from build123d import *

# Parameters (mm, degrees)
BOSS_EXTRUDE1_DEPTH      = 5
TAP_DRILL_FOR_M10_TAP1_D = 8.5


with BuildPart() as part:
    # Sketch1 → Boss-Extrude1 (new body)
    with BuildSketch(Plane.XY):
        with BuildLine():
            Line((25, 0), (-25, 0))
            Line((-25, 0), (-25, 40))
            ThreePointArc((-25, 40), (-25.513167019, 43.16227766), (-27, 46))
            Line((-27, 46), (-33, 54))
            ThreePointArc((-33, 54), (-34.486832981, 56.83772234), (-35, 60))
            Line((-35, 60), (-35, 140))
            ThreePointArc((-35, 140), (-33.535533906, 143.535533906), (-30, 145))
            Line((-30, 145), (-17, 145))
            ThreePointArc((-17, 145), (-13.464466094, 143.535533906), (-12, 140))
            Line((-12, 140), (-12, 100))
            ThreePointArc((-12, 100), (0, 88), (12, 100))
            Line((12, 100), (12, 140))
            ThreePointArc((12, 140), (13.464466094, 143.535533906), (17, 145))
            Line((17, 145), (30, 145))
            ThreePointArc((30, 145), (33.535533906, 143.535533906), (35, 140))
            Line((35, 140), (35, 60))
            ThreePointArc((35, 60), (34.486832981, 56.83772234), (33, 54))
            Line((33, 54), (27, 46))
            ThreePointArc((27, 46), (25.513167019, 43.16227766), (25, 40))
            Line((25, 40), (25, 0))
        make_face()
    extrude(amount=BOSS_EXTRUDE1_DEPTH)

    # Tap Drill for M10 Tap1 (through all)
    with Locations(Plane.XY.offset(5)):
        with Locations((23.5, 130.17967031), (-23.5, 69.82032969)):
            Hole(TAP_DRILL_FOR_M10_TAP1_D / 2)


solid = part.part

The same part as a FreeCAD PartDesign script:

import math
import FreeCAD as App
import Part
import Sketcher

V = App.Vector

doc = App.newDocument("Part")
body = doc.addObject("PartDesign::Body", "Body")

# Sketch on XY plane
sketch1 = body.newObject("Sketcher::SketchObject", "Sketch")
sketch1.AttachmentSupport = (doc.getObject("XY_Plane"), [""])
sketch1.MapMode = "FlatFace"
sketch1.addGeometry([
    Part.LineSegment(V(-25, 0, 0), V(25, 0, 0)),  # 0
    Part.LineSegment(V(25, 0, 0), V(25, 40, 0)),  # 1
    Part.ArcOfCircle(Part.Circle(V(35, 40, 0), V(0, 0, 1), 10), math.radians(143), math.radians(180)),  # 2
    Part.LineSegment(V(27, 46, 0), V(33, 54, 0)),  # 3
    Part.ArcOfCircle(Part.Circle(V(25, 60, 0), V(0, 0, 1), 10), math.radians(-37), math.radians(0)),  # 4
    Part.LineSegment(V(35, 60, 0), V(35, 140, 0)),  # 5
    Part.ArcOfCircle(Part.Circle(V(30, 140, 0), V(0, 0, 1), 5), math.radians(0), math.radians(90)),  # 6
    Part.LineSegment(V(30, 145, 0), V(17, 145, 0)),  # 7
    Part.ArcOfCircle(Part.Circle(V(17, 140, 0), V(0, 0, 1), 5), math.radians(90), math.radians(180)),  # 8
    Part.LineSegment(V(12, 140, 0), V(12, 100, 0)),  # 9
    Part.ArcOfCircle(Part.Circle(V(0, 100, 0), V(0, 0, 1), 12), math.radians(180), math.radians(360)),  # 10
    Part.LineSegment(V(-12, 100, 0), V(-12, 140, 0)),  # 11
    Part.ArcOfCircle(Part.Circle(V(-17, 140, 0), V(0, 0, 1), 5), math.radians(0), math.radians(90)),  # 12
    Part.LineSegment(V(-17, 145, 0), V(-30, 145, 0)),  # 13
    Part.ArcOfCircle(Part.Circle(V(-30, 140, 0), V(0, 0, 1), 5), math.radians(90), math.radians(180)),  # 14
    Part.LineSegment(V(-35, 140, 0), V(-35, 60, 0)),  # 15
    Part.ArcOfCircle(Part.Circle(V(-25, 60, 0), V(0, 0, 1), 10), math.radians(180), math.radians(217)),  # 16
    Part.LineSegment(V(-33, 54, 0), V(-27, 46, 0)),  # 17
    Part.ArcOfCircle(Part.Circle(V(-35, 40, 0), V(0, 0, 1), 10), math.radians(0), math.radians(37)),  # 18
    Part.LineSegment(V(-25, 40, 0), V(-25, 0, 0)),  # 19
], False)
sketch1.addConstraint([
    Sketcher.Constraint("Coincident", 0, 2, 1, 1),
    Sketcher.Constraint("Tangent", 1, 2, 2, 2),
    Sketcher.Constraint("Tangent", 2, 1, 3, 1),
    Sketcher.Constraint("Tangent", 3, 2, 4, 1),
    Sketcher.Constraint("Tangent", 4, 2, 5, 1),
    Sketcher.Constraint("Tangent", 5, 2, 6, 1),
    Sketcher.Constraint("Tangent", 6, 2, 7, 1),
    Sketcher.Constraint("Tangent", 7, 2, 8, 1),
    Sketcher.Constraint("Tangent", 8, 2, 9, 1),
    Sketcher.Constraint("Tangent", 9, 2, 10, 2),
    Sketcher.Constraint("Tangent", 10, 1, 11, 1),
    Sketcher.Constraint("Tangent", 11, 2, 12, 1),
    Sketcher.Constraint("Tangent", 12, 2, 13, 1),
    Sketcher.Constraint("Tangent", 13, 2, 14, 1),
    Sketcher.Constraint("Tangent", 14, 2, 15, 1),
    Sketcher.Constraint("Tangent", 15, 2, 16, 1),
    Sketcher.Constraint("Tangent", 16, 2, 17, 1),
    Sketcher.Constraint("Tangent", 17, 2, 18, 2),
    Sketcher.Constraint("Tangent", 18, 1, 19, 1),
    Sketcher.Constraint("Coincident", 19, 2, 0, 1),
    Sketcher.Constraint("Horizontal", 0),
    Sketcher.Constraint("Vertical", 1),
    Sketcher.Constraint("Vertical", 5),
    Sketcher.Constraint("Horizontal", 7),
    Sketcher.Constraint("Vertical", 9),
    Sketcher.Constraint("Vertical", 11),
    Sketcher.Constraint("Horizontal", 13),
    Sketcher.Constraint("Vertical", 15),
    Sketcher.Constraint("Vertical", 19),
    Sketcher.Constraint("Equal", 2, 4),
    Sketcher.Constraint("Equal", 6, 8),
    Sketcher.Constraint("Equal", 8, 12),
    Sketcher.Constraint("Equal", 12, 14),
    Sketcher.Constraint("Equal", 4, 16),
    Sketcher.Constraint("Equal", 16, 18),
    Sketcher.Constraint("Symmetric", 0, 2, 19, 2, -1, 1),
    Sketcher.Constraint("Symmetric", 8, 3, 12, 3, -2),
    Sketcher.Constraint("Symmetric", 4, 3, 16, 3, -2),
    Sketcher.Constraint("Horizontal", 2, 3, 18, 3),
    Sketcher.Constraint("Vertical", 4, 3, 0, 2),
    Sketcher.Constraint("Equal", 1, 9),
    Sketcher.Constraint("Radius", 2, 10.0),
    Sketcher.Constraint("Radius", 6, 5.0),
    Sketcher.Constraint("Radius", 10, 12.0),
    Sketcher.Constraint("DistanceX", 0, 1, 0, 2, 50.0),
    Sketcher.Constraint("DistanceY", 1, 1, 1, 2, 40.0),
    Sketcher.Constraint("DistanceY", 5, 1, 5, 2, 80.0),
    Sketcher.Constraint("Distance", 3, 10.0),
])
pad1 = body.newObject("PartDesign::Pad", "Pad")
pad1.Profile = sketch1
pad1.Length = 5

# Sketch on XY plane
sketch2 = body.newObject("Sketcher::SketchObject", "Sketch001")
sketch2.AttachmentSupport = (doc.getObject("XY_Plane"), [""])
sketch2.MapMode = "FlatFace"
sketch2.AttachmentOffset = App.Placement(V(0, 0, 5), App.Rotation())
sketch2.addGeometry([
    Part.Circle(V(23.5, 130.2, 0), V(0, 0, 1), 4.2),
    Part.Circle(V(-23.5, 69.8, 0), V(0, 0, 1), 4.2),
], False)
sketch2.addConstraint([
    Sketcher.Constraint("Equal", 0, 1),
    Sketcher.Constraint("Diameter", 0, 8.5),
    Sketcher.Constraint("DistanceX", 1, 3, 0, 3, 47.0),
    Sketcher.Constraint("DistanceX", -1, 1, 0, 3, 23.5),
    Sketcher.Constraint("DistanceY", -1, 1, 0, 3, 130.17967),
    Sketcher.Constraint("DistanceY", -1, 1, 1, 3, 69.82033),
])
doc.recompute()
hole = body.newObject("PartDesign::Hole", "Hole")
hole.Profile = sketch2
hole.ThreadType = "None"
hole.Diameter = 8.5
hole.DepthType = "ThroughAll"

doc.recompute()
